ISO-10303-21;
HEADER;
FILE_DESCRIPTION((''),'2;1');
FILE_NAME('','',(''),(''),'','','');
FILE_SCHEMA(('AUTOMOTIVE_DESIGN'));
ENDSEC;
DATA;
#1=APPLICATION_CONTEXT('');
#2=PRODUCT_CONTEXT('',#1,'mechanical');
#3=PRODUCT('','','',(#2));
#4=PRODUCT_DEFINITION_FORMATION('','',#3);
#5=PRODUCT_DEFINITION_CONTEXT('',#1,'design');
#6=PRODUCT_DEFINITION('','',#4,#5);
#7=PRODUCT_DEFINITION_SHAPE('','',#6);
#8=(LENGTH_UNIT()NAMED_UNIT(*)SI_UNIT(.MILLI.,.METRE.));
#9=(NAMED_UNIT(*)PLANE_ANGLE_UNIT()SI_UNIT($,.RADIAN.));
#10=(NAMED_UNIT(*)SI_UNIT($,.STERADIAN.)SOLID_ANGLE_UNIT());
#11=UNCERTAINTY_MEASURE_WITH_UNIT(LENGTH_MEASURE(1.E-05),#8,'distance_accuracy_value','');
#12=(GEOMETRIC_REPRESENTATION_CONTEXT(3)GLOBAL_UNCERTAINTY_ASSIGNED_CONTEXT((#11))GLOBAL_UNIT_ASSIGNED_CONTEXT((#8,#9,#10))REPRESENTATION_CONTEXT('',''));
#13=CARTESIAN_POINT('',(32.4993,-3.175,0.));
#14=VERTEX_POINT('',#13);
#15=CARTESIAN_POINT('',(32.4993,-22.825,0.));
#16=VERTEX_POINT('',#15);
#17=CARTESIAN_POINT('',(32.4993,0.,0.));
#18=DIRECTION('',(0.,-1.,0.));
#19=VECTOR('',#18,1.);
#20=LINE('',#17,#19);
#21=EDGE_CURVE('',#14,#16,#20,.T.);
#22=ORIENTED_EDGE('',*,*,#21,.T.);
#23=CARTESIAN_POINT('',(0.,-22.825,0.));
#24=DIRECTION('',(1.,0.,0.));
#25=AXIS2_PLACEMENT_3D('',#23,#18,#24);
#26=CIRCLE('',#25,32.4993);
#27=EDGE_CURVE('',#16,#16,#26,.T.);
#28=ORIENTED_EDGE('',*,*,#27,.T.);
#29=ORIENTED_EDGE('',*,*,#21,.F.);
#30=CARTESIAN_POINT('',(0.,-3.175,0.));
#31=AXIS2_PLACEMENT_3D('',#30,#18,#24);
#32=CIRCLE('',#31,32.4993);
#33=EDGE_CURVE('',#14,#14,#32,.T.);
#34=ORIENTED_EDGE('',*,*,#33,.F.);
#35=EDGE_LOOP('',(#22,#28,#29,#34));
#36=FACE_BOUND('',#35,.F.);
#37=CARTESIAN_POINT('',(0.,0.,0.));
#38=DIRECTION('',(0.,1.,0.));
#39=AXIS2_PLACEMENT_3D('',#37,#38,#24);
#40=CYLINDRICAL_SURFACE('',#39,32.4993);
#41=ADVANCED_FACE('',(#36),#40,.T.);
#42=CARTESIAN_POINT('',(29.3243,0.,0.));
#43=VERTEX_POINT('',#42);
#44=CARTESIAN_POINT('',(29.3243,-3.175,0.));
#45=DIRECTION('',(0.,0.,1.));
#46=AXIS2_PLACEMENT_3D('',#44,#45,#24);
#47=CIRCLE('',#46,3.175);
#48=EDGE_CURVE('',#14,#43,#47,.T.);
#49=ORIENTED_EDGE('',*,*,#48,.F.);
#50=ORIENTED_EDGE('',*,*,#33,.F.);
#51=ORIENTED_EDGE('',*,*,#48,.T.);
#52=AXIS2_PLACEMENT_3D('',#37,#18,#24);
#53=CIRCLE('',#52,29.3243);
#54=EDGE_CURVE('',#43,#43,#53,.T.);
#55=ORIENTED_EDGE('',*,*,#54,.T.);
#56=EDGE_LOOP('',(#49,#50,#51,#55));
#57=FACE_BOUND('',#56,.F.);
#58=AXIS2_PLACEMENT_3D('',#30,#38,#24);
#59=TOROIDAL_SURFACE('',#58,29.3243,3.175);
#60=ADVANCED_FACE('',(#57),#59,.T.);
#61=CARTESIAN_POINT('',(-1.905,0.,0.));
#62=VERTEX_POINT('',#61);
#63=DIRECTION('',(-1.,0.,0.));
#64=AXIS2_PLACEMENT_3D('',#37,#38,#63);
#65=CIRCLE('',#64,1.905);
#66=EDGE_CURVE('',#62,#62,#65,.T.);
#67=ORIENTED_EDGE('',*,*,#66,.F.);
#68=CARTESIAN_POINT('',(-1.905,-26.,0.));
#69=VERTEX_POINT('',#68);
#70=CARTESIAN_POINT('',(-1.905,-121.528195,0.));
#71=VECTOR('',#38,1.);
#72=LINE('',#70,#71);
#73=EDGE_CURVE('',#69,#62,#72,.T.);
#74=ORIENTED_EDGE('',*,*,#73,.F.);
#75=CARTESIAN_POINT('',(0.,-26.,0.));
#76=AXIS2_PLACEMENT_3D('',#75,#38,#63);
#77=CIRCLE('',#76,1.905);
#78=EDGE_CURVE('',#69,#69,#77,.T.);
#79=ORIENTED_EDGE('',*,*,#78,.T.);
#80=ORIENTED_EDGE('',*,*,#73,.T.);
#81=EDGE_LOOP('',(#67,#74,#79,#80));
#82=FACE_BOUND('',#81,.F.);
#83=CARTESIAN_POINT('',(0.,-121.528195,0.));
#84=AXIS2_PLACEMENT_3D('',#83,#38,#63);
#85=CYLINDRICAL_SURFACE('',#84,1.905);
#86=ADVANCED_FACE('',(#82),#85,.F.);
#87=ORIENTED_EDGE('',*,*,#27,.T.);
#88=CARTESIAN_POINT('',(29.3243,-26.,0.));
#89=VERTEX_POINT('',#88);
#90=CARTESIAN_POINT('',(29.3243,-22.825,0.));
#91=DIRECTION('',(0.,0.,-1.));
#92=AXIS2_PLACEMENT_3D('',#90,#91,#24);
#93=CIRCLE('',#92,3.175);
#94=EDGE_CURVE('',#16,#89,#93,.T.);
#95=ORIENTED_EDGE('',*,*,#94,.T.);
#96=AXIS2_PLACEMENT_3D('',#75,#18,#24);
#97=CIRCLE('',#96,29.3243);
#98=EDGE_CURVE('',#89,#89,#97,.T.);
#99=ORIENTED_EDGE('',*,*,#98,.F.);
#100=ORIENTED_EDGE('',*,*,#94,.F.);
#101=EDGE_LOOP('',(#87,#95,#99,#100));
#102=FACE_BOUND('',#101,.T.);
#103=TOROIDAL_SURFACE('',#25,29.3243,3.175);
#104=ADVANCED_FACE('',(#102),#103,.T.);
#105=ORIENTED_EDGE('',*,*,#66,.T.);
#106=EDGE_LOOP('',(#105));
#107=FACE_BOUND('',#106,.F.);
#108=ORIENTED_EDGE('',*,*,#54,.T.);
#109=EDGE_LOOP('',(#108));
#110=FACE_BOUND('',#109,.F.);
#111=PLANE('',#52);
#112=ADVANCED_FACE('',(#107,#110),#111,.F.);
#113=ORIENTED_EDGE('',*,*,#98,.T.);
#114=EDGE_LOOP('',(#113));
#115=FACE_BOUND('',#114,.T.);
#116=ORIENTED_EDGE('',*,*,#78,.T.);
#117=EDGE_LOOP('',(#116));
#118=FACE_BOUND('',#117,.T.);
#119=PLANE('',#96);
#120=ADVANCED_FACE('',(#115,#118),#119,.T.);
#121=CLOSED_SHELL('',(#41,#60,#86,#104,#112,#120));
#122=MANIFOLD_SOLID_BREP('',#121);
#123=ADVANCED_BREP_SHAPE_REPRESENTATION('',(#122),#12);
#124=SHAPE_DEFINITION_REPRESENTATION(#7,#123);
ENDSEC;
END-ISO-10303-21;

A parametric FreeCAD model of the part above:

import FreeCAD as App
import Part
import Sketcher
Q = App.Units.Quantity


def edges_at(feature, points):
    """Names of the edges that pass closest to the given points."""
    edges = feature.Shape.Edges
    near = lambda p: min(range(len(edges)), key=lambda i: edges[i].distToShape(Part.Vertex(*p))[0])
    return sorted({f"Edge{near(p) + 1}" for p in points})

doc = App.newDocument("Part")
body = doc.addObject("PartDesign::Body", "Body")

# Sketch on XZ plane
sketch1 = body.newObject("Sketcher::SketchObject", "Sketch")
sketch1.AttachmentSupport = (doc.getObject("XZ_Plane"), [""])
sketch1.MapMode = "FlatFace"
sketch1.addGeometry(Part.Circle(App.Vector(0, 0, 0), App.Vector(0, 0, 1), 32), False)
sketch1.addConstraint(Sketcher.Constraint("Coincident", 0, 3, -1, 1))
sketch1.addConstraint(Sketcher.Constraint("Diameter", 0, Q("2.559 in")))
pad1 = body.newObject("PartDesign::Pad", "Pad")
pad1.Profile = sketch1
pad1.Length = 26
doc.recompute()

fillet = body.newObject("PartDesign::Fillet", "Fillet")
fillet.Base = (pad1, edges_at(pad1, [(-32.499, -26, 0), (-32.499, 0, 0)]))
fillet.Radius = Q("0.125 in")

# Sketch on XZ plane
sketch2 = body.newObject("Sketcher::SketchObject", "Sketch001")
sketch2.AttachmentSupport = (doc.getObject("XZ_Plane"), [""])
sketch2.MapMode = "FlatFace"
sketch2.AttachmentOffset = App.Placement(App.Vector(0, 0, 26), App.Rotation())
sketch2.addGeometry(Part.Circle(App.Vector(0, 0, 0), App.Vector(0, 0, 1), 1.9), False)
sketch2.addConstraint(Sketcher.Constraint("Coincident", 0, 3, -1, 1))
sketch2.addConstraint(Sketcher.Constraint("Diameter", 0, Q("0.15 in")))
doc.recompute()
hole = body.newObject("PartDesign::Hole", "Hole")
hole.Profile = sketch2
hole.ThreadType = "None"
hole.Diameter = Q("0.15 in")
hole.DepthType = "ThroughAll"

doc.recompute()
